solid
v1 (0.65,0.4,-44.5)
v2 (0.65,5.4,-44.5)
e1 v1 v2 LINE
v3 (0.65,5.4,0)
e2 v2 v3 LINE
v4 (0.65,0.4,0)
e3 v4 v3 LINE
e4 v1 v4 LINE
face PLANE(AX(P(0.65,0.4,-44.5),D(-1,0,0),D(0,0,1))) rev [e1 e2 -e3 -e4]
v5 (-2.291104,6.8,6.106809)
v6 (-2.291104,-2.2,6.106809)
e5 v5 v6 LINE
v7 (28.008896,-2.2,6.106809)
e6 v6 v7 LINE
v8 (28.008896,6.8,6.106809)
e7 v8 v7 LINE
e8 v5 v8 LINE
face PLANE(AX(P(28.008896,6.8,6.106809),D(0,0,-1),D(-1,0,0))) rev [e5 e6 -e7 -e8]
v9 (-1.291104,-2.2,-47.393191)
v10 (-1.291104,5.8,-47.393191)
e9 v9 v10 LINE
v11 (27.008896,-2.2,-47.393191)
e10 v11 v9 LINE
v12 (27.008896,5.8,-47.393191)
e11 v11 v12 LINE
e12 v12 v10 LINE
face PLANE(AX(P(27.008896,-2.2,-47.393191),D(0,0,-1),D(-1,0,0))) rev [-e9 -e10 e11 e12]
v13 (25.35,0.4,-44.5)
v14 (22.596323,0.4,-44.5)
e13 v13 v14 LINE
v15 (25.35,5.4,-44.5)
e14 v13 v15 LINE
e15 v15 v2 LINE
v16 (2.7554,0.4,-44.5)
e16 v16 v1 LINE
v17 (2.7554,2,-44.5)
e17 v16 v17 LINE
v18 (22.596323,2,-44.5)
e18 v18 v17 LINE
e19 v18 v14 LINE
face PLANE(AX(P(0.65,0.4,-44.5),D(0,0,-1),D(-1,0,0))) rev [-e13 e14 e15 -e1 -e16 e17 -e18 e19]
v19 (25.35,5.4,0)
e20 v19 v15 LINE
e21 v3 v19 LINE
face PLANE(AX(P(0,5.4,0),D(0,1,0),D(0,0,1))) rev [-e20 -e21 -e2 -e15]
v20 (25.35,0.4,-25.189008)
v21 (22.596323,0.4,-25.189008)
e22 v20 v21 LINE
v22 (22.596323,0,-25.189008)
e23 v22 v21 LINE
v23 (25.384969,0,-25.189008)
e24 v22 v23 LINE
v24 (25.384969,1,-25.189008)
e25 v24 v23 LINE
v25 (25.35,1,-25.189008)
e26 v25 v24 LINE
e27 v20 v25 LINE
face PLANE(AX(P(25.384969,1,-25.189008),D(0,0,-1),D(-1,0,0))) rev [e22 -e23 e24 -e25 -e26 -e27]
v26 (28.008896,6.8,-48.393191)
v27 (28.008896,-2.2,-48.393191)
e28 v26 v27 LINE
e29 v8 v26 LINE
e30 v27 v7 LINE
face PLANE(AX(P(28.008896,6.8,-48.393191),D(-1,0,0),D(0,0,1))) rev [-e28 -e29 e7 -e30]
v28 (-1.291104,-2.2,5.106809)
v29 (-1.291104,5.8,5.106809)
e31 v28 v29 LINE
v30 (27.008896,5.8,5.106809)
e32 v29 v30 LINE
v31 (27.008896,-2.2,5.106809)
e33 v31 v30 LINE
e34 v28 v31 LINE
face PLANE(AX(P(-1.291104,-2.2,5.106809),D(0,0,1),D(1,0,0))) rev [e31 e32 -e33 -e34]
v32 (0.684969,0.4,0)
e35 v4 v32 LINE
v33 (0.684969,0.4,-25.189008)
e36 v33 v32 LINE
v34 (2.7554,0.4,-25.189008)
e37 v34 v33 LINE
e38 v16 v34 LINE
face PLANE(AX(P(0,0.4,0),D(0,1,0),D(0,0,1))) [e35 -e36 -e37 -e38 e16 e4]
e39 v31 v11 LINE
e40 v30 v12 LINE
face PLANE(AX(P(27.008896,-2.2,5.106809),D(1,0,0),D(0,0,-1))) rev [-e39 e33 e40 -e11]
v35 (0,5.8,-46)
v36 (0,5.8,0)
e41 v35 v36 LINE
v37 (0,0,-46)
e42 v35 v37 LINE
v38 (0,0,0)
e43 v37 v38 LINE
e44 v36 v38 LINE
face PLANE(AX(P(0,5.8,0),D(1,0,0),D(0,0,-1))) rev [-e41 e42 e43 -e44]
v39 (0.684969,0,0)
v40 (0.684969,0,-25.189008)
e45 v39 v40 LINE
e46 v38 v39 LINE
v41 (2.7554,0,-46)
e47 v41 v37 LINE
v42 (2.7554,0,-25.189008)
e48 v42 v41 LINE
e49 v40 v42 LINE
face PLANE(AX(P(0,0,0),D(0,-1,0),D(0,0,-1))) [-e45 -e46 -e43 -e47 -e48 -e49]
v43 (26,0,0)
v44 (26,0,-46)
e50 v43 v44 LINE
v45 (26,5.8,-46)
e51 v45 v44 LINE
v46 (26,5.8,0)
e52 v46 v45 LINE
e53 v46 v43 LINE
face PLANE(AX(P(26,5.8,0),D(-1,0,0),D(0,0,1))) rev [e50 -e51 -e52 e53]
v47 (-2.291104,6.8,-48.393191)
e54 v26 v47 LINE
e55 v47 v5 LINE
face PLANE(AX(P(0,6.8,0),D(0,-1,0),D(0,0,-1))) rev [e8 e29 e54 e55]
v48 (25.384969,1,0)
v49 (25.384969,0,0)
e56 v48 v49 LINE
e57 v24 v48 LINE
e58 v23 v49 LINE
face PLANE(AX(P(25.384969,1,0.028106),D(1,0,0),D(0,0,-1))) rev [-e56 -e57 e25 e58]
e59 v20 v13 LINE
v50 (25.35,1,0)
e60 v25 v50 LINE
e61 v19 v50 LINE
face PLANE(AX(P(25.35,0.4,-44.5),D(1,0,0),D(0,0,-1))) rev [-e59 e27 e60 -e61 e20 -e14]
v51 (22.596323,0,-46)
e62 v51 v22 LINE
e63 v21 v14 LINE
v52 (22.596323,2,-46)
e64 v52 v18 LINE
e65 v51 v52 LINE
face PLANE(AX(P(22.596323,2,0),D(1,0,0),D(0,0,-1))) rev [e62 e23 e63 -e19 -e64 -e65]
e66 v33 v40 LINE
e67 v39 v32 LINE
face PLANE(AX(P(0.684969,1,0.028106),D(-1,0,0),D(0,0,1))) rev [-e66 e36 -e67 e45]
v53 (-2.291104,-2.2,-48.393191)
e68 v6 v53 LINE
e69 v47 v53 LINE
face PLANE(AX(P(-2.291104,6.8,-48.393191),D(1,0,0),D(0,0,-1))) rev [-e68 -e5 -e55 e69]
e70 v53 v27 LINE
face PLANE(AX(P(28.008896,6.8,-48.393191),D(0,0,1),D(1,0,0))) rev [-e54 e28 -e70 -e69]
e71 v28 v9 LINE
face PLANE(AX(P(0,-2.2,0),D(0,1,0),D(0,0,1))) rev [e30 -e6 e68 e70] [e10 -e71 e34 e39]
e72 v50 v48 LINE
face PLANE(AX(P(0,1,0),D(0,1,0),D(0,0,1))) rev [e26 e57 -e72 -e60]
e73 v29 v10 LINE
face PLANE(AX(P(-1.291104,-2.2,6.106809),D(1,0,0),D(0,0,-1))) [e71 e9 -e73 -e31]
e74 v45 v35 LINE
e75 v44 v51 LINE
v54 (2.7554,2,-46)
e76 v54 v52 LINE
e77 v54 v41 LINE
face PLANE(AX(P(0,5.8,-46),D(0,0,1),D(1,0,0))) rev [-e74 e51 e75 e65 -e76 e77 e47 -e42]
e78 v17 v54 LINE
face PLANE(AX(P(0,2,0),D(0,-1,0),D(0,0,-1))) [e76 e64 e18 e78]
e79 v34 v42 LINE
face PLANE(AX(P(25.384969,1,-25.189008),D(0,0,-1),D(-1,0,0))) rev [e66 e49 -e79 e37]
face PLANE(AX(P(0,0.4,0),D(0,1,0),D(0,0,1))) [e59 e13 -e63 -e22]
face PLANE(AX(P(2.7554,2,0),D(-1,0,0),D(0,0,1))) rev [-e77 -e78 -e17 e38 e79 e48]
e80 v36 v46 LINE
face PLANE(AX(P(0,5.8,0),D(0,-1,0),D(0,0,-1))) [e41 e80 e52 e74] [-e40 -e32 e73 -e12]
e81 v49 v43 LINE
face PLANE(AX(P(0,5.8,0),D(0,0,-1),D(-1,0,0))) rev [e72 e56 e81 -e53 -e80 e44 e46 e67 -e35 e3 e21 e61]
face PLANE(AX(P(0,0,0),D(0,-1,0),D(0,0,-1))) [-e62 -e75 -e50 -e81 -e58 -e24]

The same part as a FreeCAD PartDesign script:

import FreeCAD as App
import Part
import Sketcher

V = App.Vector


def add_polygon(sketch, points):
    """Adds a closed chain of lines whose ends are joined by coincident constraints."""
    first, n = sketch.GeometryCount, len(points)
    for a, b in zip(points, points[1:] + points[:1]):
        sketch.addGeometry(Part.LineSegment(App.Vector(*a, 0), App.Vector(*b, 0)), False)
    for i in range(n):
        sketch.addConstraint(Sketcher.Constraint("Coincident", first + i, 2, first + (i + 1) % n, 1))

doc = App.newDocument("Part")
params = doc.addObject("Spreadsheet::Sheet", "Params")
for row, (alias, value) in enumerate([
    ("sketch1_width", "26 mm"),
    ("sketch1_height", "46 mm"),
    ("pad1_length", "5.8 mm"),
    ("sketch2_height", "45 mm"),
    ("sketch2_width", "24.7 mm"),
    ("pocket1_length", "5 mm"),
    ("sketch3_width", "30.3 mm"),
    ("sketch3_height", "54.5 mm"),
    ("pad2_length", "1 mm"),
    ("sketch4_width", "1 mm"),
    ("sketch4_height", "54.5 mm"),
    ("pad3_length", "8 mm"),
    ("sketch5_height", "1 mm"),
    ("sketch5_width", "29.3 mm"),
    ("pad4_length", "8 mm"),
    ("sketch6_width", "1 mm"),
    ("sketch6_height", "53.5 mm"),
    ("pad5_length", "8 mm"),
    ("sketch7_height", "1 mm"),
    ("sketch7_width", "28.3 mm"),
    ("pad6_length", "8 mm"),
    ("pocket2_length", "2 mm"),
    ("sketch9_width", "24.7 mm"),
    ("pocket3_length", "1 mm"),
], start=1):
    params.set(f"A{row}", alias)
    params.set(f"B{row}", "=" + value)
    params.setAlias(f"B{row}", alias)

body = doc.addObject("PartDesign::Body", "Body")

# Sketch on XZ plane
sketch1 = doc.addObject("Sketcher::SketchObject", "Sketch")
body.addObject(sketch1)
sketch1.AttachmentSupport = (doc.XZ_Plane, [""])
sketch1.MapMode = "FlatFace"
add_polygon(sketch1, [(0, -46), (0, 0), (26, 0), (26, -46)])  # lines 0-3
sketch1.addConstraint(Sketcher.Constraint("Vertical", 0))
sketch1.addConstraint(Sketcher.Constraint("Horizontal", 1))
sketch1.addConstraint(Sketcher.Constraint("Vertical", 2))
sketch1.addConstraint(Sketcher.Constraint("Horizontal", 3))
sketch1.addConstraint(Sketcher.Constraint("Coincident", 0, 2, -1, 1))
sketch1.addConstraint(Sketcher.Constraint("DistanceX", 1, 1, 1, 2, 26.0))
sketch1.addConstraint(Sketcher.Constraint("DistanceY", 0, 1, 0, 2, 46.0))
sketch1.setExpression("Constraints[9]", "Params.sketch1_width")
sketch1.setExpression("Constraints[10]", "Params.sketch1_height")
pad1 = doc.addObject("PartDesign::Pad", "Pad")
body.addObject(pad1)
pad1.Profile = sketch1
pad1.setExpression("Length", "Params.pad1_length")
pad1.Reversed = True

# Sketch on XZ plane
sketch2 = doc.addObject("Sketcher::SketchObject", "Sketch001")
body.addObject(sketch2)
sketch2.AttachmentSupport = (doc.XZ_Plane, [""])
sketch2.MapMode = "FlatFace"
sketch2.AttachmentOffset = App.Placement(V(0, 0, -5.4), App.Rotation())
add_polygon(sketch2, [(1, -44), (1, 0), (25, 0), (25, -44)])  # lines 0-3
sketch2.addConstraint(Sketcher.Constraint("Vertical", 0))
sketch2.addConstraint(Sketcher.Constraint("Horizontal", 1))
sketch2.addConstraint(Sketcher.Constraint("Vertical", 2))
sketch2.addConstraint(Sketcher.Constraint("Horizontal", 3))
sketch2.addConstraint(Sketcher.Constraint("DistanceY", 0, 1, 0, 2, 45.0))
sketch2.addConstraint(Sketcher.Constraint("DistanceX", 1, 1, 1, 2, 24.7))
sketch2.addConstraint(Sketcher.Constraint("DistanceY", -1, 1, 0, 2, 0.5))
sketch2.addConstraint(Sketcher.Constraint("DistanceX", -1, 1, 0, 2, 0.65))
sketch2.setExpression("Constraints[8]", "Params.sketch2_height")
sketch2.setExpression("Constraints[9]", "Params.sketch2_width")
pocket1 = doc.addObject("PartDesign::Pocket", "Pocket")
body.addObject(pocket1)
pocket1.Profile = sketch2
pocket1.setExpression("Length", "Params.pocket1_length")
pocket1.Reversed = True

# Sketch on XZ plane
sketch3 = doc.addObject("Sketcher::SketchObject", "Sketch002")
body.addObject(sketch3)
sketch3.AttachmentSupport = (doc.XZ_Plane, [""])
sketch3.MapMode = "FlatFace"
sketch3.AttachmentOffset = App.Placement(V(0, 0, -5.8), App.Rotation())
add_polygon(sketch3, [(-2, -48), (-2, 6), (28, 6), (28, -48)])  # lines 0-3
sketch3.addConstraint(Sketcher.Constraint("Vertical", 0))
sketch3.addConstraint(Sketcher.Constraint("Horizontal", 1))
sketch3.addConstraint(Sketcher.Constraint("Vertical", 2))
sketch3.addConstraint(Sketcher.Constraint("Horizontal", 3))
sketch3.addConstraint(Sketcher.Constraint("DistanceX", 1, 1, 1, 2, 30.3))
sketch3.addConstraint(Sketcher.Constraint("DistanceY", 0, 1, 0, 2, 54.5))
sketch3.addConstraint(Sketcher.Constraint("DistanceY", -1, 1, 0, 2, 6.106809))
sketch3.addConstraint(Sketcher.Constraint("DistanceX", 0, 2, -1, 1, 2.291104))
sketch3.setExpression("Constraints[8]", "Params.sketch3_width")
sketch3.setExpression("Constraints[9]", "Params.sketch3_height")
pad2 = doc.addObject("PartDesign::Pad", "Pad001")
body.addObject(pad2)
pad2.Profile = sketch3
pad2.setExpression("Length", "Params.pad2_length")
pad2.Reversed = True

# Sketch on XZ plane
sketch4 = doc.addObject("Sketcher::SketchObject", "Sketch003")
body.addObject(sketch4)
sketch4.AttachmentSupport = (doc.XZ_Plane, [""])
sketch4.MapMode = "FlatFace"
sketch4.AttachmentOffset = App.Placement(V(0, 0, -5.8), App.Rotation())
add_polygon(sketch4, [(-2.3, 6.1), (-2.3, -48.4), (-1.3, -48.4), (-1.3, 6.1)])  # lines 0-3
sketch4.addConstraint(Sketcher.Constraint("Vertical", 0))
sketch4.addConstraint(Sketcher.Constraint("Horizontal", 1))
sketch4.addConstraint(Sketcher.Constraint("Vertical", 2))
sketch4.addConstraint(Sketcher.Constraint("Horizontal", 3))
sketch4.addConstraint(Sketcher.Constraint("DistanceX", 1, 1, 1, 2, 1.0))
sketch4.addConstraint(Sketcher.Constraint("DistanceY", 0, 2, 0, 1, 54.5))
sketch4.addConstraint(Sketcher.Constraint("DistanceY", 0, 2, -1, 1, 48.393191))
sketch4.addConstraint(Sketcher.Constraint("DistanceX", 0, 2, -1, 1, 2.291104))
sketch4.setExpression("Constraints[8]", "Params.sketch4_width")
sketch4.setExpression("Constraints[9]", "Params.sketch4_height")
pad3 = doc.addObject("PartDesign::Pad", "Pad002")
body.addObject(pad3)
pad3.Profile = sketch4
pad3.setExpression("Length", "Params.pad3_length")

# Sketch on XZ plane
sketch5 = doc.addObject("Sketcher::SketchObject", "Sketch004")
body.addObject(sketch5)
sketch5.AttachmentSupport = (doc.XZ_Plane, [""])
sketch5.MapMode = "FlatFace"
sketch5.AttachmentOffset = App.Placement(V(0, 0, -5.8), App.Rotation())
add_polygon(sketch5, [(-1.3, 6.1), (-1.3, 5.1), (28, 5.1), (28, 6.1)])  # lines 0-3
sketch5.addConstraint(Sketcher.Constraint("Vertical", 0))
sketch5.addConstraint(Sketcher.Constraint("Horizontal", 1))
sketch5.addConstraint(Sketcher.Constraint("Vertical", 2))
sketch5.addConstraint(Sketcher.Constraint("Horizontal", 3))
sketch5.addConstraint(Sketcher.Constraint("DistanceY", 0, 2, 0, 1, 1.0))
sketch5.addConstraint(Sketcher.Constraint("DistanceX", 1, 1, 1, 2, 29.3))
sketch5.addConstraint(Sketcher.Constraint("DistanceY", -1, 1, 0, 2, 5.106809))
sketch5.addConstraint(Sketcher.Constraint("DistanceX", 0, 2, -1, 1, 1.291104))
sketch5.setExpression("Constraints[8]", "Params.sketch5_height")
sketch5.setExpression("Constraints[9]", "Params.sketch5_width")
pad4 = doc.addObject("PartDesign::Pad", "Pad003")
body.addObject(pad4)
pad4.Profile = sketch5
pad4.setExpression("Length", "Params.pad4_length")

# Sketch on XZ plane
sketch6 = doc.addObject("Sketcher::SketchObject", "Sketch005")
body.addObject(sketch6)
sketch6.AttachmentSupport = (doc.XZ_Plane, [""])
sketch6.MapMode = "FlatFace"
sketch6.AttachmentOffset = App.Placement(V(0, 0, -5.8), App.Rotation())
add_polygon(sketch6, [(27, 5.1), (27, -48.4), (28, -48.4), (28, 5.1)])  # lines 0-3
sketch6.addConstraint(Sketcher.Constraint("Vertical", 0))
sketch6.addConstraint(Sketcher.Constraint("Horizontal", 1))
sketch6.addConstraint(Sketcher.Constraint("Vertical", 2))
sketch6.addConstraint(Sketcher.Constraint("Horizontal", 3))
sketch6.addConstraint(Sketcher.Constraint("DistanceX", 1, 1, 1, 2, 1.0))
sketch6.addConstraint(Sketcher.Constraint("DistanceY", 0, 2, 0, 1, 53.5))
sketch6.addConstraint(Sketcher.Constraint("DistanceY", 0, 2, -1, 1, 48.393191))
sketch6.addConstraint(Sketcher.Constraint("DistanceX", -1, 1, 0, 2, 27.008896))
sketch6.setExpression("Constraints[8]", "Params.sketch6_width")
sketch6.setExpression("Constraints[9]", "Params.sketch6_height")
pad5 = doc.addObject("PartDesign::Pad", "Pad004")
body.addObject(pad5)
pad5.Profile = sketch6
pad5.setExpression("Length", "Params.pad5_length")

# Sketch on XZ plane
sketch7 = doc.addObject("Sketcher::SketchObject", "Sketch006")
body.addObject(sketch7)
sketch7.AttachmentSupport = (doc.XZ_Plane, [""])
sketch7.MapMode = "FlatFace"
sketch7.AttachmentOffset = App.Placement(V(0, 0, -5.8), App.Rotation())
add_polygon(sketch7, [(-1.3, -47.4), (-1.3, -48.4), (27, -48.4), (27, -47.4)])  # lines 0-3
sketch7.addConstraint(Sketcher.Constraint("Vertical", 0))
sketch7.addConstraint(Sketcher.Constraint("Horizontal", 1))
sketch7.addConstraint(Sketcher.Constraint("Vertical", 2))
sketch7.addConstraint(Sketcher.Constraint("Horizontal", 3))
sketch7.addConstraint(Sketcher.Constraint("DistanceY", 0, 2, 0, 1, 1.0))
sketch7.addConstraint(Sketcher.Constraint("DistanceX", 1, 1, 1, 2, 28.3))
sketch7.addConstraint(Sketcher.Constraint("DistanceY", 0, 2, -1, 1, 48.393191))
sketch7.addConstraint(Sketcher.Constraint("DistanceX", 0, 2, -1, 1, 1.291104))
sketch7.setExpression("Constraints[8]", "Params.sketch7_height")
sketch7.setExpression("Constraints[9]", "Params.sketch7_width")
pad6 = doc.addObject("PartDesign::Pad", "Pad005")
body.addObject(pad6)
pad6.Profile = sketch7
pad6.setExpression("Length", "Params.pad6_length")

# Sketch on XZ plane
sketch8 = doc.addObject("Sketcher::SketchObject", "Sketch007")
body.addObject(sketch8)
sketch8.AttachmentSupport = (doc.XZ_Plane, [""])
sketch8.MapMode = "FlatFace"
add_polygon(sketch8, [(3, 0), (3, -47), (23, -47), (23, 0)])  # lines 0-3
sketch8.addConstraint(Sketcher.Constraint("Vertical", 0))
sketch8.addConstraint(Sketcher.Constraint("Horizontal", 1))
sketch8.addConstraint(Sketcher.Constraint("Vertical", 2))
sketch8.addConstraint(Sketcher.Constraint("Horizontal", 3))
sketch8.addConstraint(Sketcher.Constraint("PointOnObject", 2, 2, -1))
sketch8.addConstraint(Sketcher.Constraint("DistanceY", 0, 2, 0, 1, 47.393191))
sketch8.addConstraint(Sketcher.Constraint("DistanceX", -1, 1, 0, 2, 2.7554))
sketch8.addConstraint(Sketcher.Constraint("DistanceX", 1, 1, 1, 2, 19.840923))
pocket2 = doc.addObject("PartDesign::Pocket", "Pocket001")
body.addObject(pocket2)
pocket2.Profile = sketch8
pocket2.setExpression("Length", "Params.pocket2_length")

# Sketch on XZ plane
sketch9 = doc.addObject("Sketcher::SketchObject", "Sketch008")
body.addObject(sketch9)
sketch9.AttachmentSupport = (doc.XZ_Plane, [""])
sketch9.MapMode = "FlatFace"
add_polygon(sketch9, [(1, 0), (1, -25), (25, -25), (25, 0)])  # lines 0-3
sketch9.addConstraint(Sketcher.Constraint("Vertical", 0))
sketch9.addConstraint(Sketcher.Constraint("Horizontal", 1))
sketch9.addConstraint(Sketcher.Constraint("Vertical", 2))
sketch9.addConstraint(Sketcher.Constraint("Horizontal", 3))
sketch9.addConstraint(Sketcher.Constraint("DistanceX", 1, 1, 1, 2, 24.7))
sketch9.addConstraint(Sketcher.Constraint("DistanceY", 0, 2, 0, 1, 25.217114))
sketch9.addConstraint(Sketcher.Constraint("DistanceX", -1, 1, 0, 2, 0.684969))
sketch9.addConstraint(Sketcher.Constraint("DistanceY", 0, 2, -1, 1, 25.189008))
sketch9.setExpression("Constraints[8]", "Params.sketch9_width")
pocket3 = doc.addObject("PartDesign::Pocket", "Pocket002")
body.addObject(pocket3)
pocket3.Profile = sketch9
pocket3.setExpression("Length", "Params.pocket3_length")

doc.recompute()
